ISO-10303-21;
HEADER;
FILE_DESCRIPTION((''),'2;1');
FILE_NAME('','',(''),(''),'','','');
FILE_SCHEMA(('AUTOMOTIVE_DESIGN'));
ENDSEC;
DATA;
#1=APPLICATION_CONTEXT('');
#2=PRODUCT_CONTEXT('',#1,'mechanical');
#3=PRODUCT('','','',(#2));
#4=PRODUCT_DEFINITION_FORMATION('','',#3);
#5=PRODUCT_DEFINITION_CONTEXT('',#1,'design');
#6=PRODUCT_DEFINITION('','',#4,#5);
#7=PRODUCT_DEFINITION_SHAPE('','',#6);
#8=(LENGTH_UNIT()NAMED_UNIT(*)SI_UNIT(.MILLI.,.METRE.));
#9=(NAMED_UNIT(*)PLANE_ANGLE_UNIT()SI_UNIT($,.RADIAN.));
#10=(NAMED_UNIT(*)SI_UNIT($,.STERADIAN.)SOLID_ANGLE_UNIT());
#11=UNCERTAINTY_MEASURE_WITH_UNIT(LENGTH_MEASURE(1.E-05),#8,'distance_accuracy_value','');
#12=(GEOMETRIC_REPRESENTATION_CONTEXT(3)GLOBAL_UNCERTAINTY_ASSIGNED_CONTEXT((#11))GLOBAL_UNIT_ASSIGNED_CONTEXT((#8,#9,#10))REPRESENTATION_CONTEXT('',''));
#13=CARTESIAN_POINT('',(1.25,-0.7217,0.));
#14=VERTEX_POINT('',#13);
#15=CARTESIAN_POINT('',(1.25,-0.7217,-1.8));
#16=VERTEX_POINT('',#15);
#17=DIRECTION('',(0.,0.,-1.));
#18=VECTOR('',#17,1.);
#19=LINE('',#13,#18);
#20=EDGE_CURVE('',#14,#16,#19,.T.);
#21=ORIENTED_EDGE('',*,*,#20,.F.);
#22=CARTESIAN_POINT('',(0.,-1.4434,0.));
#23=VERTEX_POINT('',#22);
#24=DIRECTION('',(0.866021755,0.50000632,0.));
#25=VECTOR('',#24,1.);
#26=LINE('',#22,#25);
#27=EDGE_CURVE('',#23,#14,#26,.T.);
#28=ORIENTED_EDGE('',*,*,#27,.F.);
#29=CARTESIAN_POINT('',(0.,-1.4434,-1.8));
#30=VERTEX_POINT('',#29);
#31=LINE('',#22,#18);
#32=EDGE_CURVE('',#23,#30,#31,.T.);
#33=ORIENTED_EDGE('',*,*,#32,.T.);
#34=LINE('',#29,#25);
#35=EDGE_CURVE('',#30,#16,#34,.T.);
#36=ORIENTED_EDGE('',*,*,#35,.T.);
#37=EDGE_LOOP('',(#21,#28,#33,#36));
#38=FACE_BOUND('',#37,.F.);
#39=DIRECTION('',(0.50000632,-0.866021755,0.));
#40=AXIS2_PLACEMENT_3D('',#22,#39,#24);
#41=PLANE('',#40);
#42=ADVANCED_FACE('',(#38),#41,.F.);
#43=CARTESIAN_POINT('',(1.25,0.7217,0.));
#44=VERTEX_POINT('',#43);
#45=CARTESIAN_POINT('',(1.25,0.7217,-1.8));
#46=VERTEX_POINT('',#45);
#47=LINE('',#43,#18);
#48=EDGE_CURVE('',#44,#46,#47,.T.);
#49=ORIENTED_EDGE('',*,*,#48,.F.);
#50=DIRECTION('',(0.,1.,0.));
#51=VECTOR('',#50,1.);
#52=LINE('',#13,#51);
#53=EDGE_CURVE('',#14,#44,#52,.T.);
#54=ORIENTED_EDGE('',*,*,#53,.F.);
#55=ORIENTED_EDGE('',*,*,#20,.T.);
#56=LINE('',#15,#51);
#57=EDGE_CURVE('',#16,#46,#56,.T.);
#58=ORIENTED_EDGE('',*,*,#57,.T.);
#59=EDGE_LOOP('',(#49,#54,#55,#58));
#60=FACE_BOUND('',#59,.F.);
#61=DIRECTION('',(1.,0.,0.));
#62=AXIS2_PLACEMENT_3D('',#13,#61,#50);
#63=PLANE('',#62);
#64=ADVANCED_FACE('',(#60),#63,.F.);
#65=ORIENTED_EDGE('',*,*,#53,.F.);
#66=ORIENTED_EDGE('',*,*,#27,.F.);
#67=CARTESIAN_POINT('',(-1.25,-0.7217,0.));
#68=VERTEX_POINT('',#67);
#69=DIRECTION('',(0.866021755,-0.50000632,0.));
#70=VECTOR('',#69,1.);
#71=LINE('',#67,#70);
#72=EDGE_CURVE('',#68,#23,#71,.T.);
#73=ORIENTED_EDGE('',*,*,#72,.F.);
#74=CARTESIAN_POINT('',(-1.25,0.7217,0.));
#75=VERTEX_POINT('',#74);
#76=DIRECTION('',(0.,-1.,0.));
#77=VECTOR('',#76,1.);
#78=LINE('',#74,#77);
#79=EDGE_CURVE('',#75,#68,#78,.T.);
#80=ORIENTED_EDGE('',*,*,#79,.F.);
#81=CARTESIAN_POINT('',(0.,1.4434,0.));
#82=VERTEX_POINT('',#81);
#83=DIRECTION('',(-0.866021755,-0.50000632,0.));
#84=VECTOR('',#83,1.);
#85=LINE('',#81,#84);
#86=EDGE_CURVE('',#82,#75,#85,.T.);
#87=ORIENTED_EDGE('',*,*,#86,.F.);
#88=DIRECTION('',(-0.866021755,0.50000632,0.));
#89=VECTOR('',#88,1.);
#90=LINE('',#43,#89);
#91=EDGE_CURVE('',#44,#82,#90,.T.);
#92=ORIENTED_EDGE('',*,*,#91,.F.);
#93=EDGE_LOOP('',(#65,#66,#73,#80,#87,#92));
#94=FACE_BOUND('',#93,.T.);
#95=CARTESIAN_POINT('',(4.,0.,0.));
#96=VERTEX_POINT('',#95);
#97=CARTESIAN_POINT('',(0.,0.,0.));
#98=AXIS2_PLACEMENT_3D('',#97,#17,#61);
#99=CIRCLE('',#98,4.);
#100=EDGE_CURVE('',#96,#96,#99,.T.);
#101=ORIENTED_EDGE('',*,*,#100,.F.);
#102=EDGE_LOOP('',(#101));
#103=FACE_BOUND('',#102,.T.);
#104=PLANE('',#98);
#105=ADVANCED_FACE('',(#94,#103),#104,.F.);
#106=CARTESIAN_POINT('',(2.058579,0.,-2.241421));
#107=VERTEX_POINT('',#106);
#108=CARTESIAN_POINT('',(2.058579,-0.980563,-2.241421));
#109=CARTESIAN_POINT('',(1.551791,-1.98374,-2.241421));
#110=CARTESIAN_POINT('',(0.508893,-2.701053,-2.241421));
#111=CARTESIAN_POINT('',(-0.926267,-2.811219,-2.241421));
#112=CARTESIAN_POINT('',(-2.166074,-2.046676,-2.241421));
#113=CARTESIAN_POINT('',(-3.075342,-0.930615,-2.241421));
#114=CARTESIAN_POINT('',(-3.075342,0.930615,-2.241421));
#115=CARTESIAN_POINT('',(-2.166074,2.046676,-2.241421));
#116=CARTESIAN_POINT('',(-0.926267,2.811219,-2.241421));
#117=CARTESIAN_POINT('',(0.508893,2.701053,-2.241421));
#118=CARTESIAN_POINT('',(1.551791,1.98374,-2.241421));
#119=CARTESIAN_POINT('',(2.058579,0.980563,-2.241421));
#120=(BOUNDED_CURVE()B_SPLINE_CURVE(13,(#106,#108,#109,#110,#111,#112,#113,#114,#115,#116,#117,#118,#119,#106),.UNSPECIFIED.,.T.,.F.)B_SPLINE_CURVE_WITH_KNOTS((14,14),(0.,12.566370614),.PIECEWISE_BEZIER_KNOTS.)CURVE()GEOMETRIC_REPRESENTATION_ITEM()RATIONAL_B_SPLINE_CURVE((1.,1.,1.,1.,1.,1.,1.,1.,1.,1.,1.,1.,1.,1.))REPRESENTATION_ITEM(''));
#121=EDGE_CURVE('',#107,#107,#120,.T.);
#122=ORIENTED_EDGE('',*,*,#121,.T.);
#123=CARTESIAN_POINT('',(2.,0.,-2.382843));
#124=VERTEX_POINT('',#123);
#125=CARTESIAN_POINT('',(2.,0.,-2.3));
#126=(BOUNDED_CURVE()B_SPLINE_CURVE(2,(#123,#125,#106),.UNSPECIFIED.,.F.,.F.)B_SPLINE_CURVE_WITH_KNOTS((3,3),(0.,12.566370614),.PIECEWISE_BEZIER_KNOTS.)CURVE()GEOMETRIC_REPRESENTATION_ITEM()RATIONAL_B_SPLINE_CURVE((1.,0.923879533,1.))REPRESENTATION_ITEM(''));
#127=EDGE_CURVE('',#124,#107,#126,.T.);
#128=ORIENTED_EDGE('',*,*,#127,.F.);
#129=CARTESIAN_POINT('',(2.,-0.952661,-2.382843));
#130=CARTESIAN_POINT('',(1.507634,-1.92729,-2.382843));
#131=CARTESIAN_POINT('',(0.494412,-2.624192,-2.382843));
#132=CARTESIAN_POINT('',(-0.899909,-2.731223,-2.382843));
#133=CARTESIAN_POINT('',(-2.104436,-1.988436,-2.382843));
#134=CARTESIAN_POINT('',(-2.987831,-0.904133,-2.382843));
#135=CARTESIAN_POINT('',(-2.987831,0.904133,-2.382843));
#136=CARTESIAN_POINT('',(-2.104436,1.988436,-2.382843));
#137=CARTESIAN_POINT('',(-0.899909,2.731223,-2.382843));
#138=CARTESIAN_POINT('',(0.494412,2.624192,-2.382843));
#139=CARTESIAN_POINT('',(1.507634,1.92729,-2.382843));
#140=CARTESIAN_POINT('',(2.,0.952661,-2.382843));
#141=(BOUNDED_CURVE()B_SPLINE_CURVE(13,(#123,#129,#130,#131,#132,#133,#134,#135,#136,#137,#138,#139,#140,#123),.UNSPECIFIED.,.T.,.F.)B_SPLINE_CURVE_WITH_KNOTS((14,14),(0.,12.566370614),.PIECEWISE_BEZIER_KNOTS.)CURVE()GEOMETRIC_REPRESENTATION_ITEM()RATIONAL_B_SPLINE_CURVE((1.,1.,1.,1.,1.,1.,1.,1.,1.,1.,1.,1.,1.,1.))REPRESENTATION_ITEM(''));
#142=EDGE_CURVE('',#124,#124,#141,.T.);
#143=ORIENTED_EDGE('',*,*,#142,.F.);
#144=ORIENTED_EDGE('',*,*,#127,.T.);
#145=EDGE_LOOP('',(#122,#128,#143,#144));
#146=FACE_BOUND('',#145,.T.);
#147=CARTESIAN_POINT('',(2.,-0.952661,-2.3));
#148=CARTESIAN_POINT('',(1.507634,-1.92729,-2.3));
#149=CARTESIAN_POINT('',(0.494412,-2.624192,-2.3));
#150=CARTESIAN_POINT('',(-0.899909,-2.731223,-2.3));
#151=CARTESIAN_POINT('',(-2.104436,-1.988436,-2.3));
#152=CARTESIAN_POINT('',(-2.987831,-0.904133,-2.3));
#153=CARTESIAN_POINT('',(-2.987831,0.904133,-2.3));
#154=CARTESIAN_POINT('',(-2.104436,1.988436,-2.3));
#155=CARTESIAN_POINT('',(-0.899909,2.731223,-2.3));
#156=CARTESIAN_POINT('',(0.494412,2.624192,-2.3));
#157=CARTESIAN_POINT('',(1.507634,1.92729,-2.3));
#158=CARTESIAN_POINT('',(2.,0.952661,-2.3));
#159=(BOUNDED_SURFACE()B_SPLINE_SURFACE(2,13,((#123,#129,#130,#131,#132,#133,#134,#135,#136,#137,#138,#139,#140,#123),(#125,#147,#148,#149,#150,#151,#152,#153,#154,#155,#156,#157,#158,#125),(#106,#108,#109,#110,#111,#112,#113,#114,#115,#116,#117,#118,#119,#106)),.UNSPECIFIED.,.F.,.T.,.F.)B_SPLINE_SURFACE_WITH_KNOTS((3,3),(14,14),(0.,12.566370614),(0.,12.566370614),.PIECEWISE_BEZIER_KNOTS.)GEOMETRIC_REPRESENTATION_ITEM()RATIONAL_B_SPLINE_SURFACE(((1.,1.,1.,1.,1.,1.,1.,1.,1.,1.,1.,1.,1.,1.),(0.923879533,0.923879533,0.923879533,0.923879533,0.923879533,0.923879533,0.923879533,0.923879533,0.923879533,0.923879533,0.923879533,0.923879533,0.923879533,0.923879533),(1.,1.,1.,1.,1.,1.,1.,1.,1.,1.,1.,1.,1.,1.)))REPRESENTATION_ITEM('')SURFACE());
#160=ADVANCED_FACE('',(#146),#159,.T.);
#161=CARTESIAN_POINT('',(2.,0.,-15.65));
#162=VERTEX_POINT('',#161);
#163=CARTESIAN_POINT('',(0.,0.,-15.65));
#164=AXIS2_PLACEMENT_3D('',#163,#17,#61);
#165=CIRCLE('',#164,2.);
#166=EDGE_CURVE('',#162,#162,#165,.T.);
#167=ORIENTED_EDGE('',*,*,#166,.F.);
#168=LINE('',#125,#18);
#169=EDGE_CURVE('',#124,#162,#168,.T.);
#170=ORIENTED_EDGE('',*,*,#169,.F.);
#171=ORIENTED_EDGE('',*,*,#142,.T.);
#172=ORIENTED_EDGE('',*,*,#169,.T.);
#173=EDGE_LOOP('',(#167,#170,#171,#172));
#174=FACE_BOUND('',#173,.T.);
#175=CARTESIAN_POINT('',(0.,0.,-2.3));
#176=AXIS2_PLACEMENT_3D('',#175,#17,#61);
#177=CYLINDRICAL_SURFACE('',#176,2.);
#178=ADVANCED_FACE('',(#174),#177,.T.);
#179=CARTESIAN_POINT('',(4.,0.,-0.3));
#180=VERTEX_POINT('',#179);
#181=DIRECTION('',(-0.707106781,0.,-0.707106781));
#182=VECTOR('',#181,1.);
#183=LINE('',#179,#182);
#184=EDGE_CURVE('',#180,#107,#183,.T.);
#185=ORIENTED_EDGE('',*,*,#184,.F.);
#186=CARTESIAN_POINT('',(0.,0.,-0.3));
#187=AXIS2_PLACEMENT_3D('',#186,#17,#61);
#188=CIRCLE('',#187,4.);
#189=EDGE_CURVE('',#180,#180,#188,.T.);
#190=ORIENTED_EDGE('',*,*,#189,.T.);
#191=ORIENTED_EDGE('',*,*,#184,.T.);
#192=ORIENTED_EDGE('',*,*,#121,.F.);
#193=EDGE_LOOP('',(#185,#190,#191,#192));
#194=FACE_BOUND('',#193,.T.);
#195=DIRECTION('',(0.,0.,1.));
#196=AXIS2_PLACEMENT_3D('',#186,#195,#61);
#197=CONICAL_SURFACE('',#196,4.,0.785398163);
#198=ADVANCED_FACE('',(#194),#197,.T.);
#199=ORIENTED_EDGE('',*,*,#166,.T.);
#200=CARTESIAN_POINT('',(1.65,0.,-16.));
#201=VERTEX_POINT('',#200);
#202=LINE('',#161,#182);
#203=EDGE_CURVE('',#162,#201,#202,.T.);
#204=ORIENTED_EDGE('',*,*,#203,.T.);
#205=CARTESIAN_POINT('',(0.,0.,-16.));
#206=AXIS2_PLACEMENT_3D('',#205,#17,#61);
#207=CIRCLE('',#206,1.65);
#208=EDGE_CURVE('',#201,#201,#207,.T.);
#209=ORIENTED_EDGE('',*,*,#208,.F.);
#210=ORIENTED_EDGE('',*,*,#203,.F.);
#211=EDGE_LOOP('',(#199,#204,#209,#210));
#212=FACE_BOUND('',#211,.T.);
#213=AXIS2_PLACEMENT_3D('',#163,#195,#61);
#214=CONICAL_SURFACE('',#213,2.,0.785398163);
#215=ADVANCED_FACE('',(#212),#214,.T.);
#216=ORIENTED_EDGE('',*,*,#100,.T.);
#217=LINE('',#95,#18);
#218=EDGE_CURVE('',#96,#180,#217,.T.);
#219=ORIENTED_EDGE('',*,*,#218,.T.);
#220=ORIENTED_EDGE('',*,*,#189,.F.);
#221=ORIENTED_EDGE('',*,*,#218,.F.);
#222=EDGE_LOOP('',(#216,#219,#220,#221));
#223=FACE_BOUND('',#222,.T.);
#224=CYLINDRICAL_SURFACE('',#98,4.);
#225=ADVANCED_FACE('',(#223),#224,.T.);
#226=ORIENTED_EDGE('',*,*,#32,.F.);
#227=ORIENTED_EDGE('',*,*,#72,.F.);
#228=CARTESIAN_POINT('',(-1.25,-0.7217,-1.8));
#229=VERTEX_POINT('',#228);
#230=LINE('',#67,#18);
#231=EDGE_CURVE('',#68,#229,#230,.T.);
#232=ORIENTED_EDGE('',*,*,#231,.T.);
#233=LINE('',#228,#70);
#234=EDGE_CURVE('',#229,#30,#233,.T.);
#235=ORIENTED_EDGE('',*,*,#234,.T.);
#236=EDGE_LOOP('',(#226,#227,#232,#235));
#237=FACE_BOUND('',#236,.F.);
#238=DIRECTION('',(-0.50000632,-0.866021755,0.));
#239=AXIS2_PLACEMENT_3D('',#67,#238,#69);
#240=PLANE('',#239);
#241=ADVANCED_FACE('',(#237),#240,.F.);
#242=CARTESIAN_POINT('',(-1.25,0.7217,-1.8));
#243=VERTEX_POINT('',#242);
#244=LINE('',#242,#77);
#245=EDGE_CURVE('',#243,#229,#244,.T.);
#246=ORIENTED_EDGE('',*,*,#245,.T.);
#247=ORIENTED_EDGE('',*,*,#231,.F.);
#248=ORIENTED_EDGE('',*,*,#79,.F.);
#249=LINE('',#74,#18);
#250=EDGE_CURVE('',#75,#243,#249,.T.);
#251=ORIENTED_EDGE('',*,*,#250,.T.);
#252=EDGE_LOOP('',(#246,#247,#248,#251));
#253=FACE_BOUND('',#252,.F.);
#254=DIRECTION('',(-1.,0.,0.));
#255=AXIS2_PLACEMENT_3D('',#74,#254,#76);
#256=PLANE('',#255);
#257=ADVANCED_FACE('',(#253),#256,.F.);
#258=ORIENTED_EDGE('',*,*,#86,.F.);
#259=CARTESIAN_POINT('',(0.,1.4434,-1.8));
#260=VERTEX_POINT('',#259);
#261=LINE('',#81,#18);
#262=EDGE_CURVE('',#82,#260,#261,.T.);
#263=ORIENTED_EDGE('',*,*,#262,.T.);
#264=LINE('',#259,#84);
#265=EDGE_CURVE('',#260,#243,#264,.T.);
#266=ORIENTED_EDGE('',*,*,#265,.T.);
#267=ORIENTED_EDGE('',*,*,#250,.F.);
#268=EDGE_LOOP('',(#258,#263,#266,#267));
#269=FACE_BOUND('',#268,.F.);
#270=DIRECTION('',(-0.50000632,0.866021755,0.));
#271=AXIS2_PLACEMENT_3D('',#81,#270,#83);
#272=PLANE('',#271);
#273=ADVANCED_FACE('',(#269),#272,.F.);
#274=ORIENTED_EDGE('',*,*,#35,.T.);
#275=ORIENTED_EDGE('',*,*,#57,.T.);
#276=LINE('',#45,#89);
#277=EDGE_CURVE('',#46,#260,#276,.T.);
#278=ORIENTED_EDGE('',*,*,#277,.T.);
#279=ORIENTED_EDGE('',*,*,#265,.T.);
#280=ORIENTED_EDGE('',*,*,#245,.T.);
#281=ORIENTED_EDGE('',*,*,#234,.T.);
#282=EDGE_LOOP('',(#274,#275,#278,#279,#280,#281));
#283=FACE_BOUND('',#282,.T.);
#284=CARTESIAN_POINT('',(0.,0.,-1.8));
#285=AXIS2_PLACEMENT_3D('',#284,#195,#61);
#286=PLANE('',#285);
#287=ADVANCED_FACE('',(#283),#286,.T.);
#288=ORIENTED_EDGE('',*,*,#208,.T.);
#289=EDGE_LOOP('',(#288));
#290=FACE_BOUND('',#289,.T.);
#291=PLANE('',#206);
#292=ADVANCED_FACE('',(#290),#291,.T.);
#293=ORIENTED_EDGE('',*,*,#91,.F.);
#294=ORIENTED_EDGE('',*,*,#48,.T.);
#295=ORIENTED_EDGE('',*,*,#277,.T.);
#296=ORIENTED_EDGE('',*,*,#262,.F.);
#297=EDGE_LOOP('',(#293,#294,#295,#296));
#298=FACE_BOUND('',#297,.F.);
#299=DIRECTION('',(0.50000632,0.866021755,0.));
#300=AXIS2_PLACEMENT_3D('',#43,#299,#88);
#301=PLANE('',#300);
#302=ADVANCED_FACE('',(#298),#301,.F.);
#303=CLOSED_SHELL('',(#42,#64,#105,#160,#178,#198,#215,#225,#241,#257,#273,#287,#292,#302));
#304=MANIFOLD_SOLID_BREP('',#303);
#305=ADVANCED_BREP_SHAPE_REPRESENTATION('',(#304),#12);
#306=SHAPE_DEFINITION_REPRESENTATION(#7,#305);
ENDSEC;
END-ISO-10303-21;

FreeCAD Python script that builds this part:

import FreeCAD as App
import Part
import Sketcher
from FreeCAD import Vector
Q = App.Units.Quantity


def edges_at(feature, points):
    """Names of the edges that pass closest to the given points."""
    edges = feature.Shape.Edges
    near = lambda p: min(range(len(edges)), key=lambda i: edges[i].distToShape(Part.Vertex(*p))[0])
    return sorted({f"Edge{near(p) + 1}" for p in points})

doc = App.newDocument("Part")
body = doc.addObject("PartDesign::Body", "Body")

# Sketch on XZ plane
sketch1 = body.newObject("Sketcher::SketchObject", "Sketch")
sketch1.AttachmentSupport = (doc.getObject("XZ_Plane"), [""])
sketch1.MapMode = "FlatFace"
sketch1.addGeometry(Part.LineSegment(Vector(2, -2.3, 0), Vector(2, -16, 0)), False)
sketch1.addGeometry(Part.LineSegment(Vector(2, -16, 0), Vector(0, -16, 0)), False)
sketch1.addGeometry(Part.LineSegment(Vector(0, -16, 0), Vector(0, 0, 0)), False)
sketch1.addGeometry(Part.LineSegment(Vector(0, 0, 0), Vector(4, 0, 0)), False)
sketch1.addGeometry(Part.LineSegment(Vector(4, 0, 0), Vector(4, -0.3, 0)), False)
sketch1.addGeometry(Part.LineSegment(Vector(4, -0.3, 0), Vector(2, -2.3, 0)), False)
sketch1.addConstraint(Sketcher.Constraint("Coincident", 0, 2, 1, 1))
sketch1.addConstraint(Sketcher.Constraint("Coincident", 1, 2, 2, 1))
sketch1.addConstraint(Sketcher.Constraint("Coincident", 2, 2, 3, 1))
sketch1.addConstraint(Sketcher.Constraint("Coincident", 3, 2, 4, 1))
sketch1.addConstraint(Sketcher.Constraint("Coincident", 4, 2, 5, 1))
sketch1.addConstraint(Sketcher.Constraint("Coincident", 5, 2, 0, 1))
sketch1.addConstraint(Sketcher.Constraint("Vertical", 0))
sketch1.addConstraint(Sketcher.Constraint("Horizontal", 1))
sketch1.addConstraint(Sketcher.Constraint("Vertical", 2))
sketch1.addConstraint(Sketcher.Constraint("Horizontal", 3))
sketch1.addConstraint(Sketcher.Constraint("Vertical", 4))
sketch1.addConstraint(Sketcher.Constraint("Coincident", 2, 2, -1, 1))
sketch1.addConstraint(Sketcher.Constraint("DistanceX", 1, 2, 1, 1, 2.0))
sketch1.addConstraint(Sketcher.Constraint("DistanceX", 3, 1, 3, 2, 4.0))
sketch1.addConstraint(Sketcher.Constraint("DistanceY", 2, 1, 2, 2, 16.0))
sketch1.addConstraint(Sketcher.Constraint("DistanceY", 4, 2, 4, 1, 0.3))
sketch1.addConstraint(Sketcher.Constraint("DistanceY", 5, 2, 4, 2, 2.0))
revolution = body.newObject("PartDesign::Revolution", "Revolution")
revolution.Profile = sketch1
revolution.ReferenceAxis = (sketch1, ["V_Axis"])
revolution.Angle = 360

# Sketch on XY plane
sketch2 = body.newObject("Sketcher::SketchObject", "Sketch001")
sketch2.AttachmentSupport = (doc.getObject("XY_Plane"), [""])
sketch2.MapMode = "FlatFace"
sketch2.addGeometry(Part.LineSegment(Vector(0, 1.4, 0), Vector(-1.2, 0.7, 0)), False)
sketch2.addGeometry(Part.LineSegment(Vector(-1.2, 0.7, 0), Vector(-1.2, -0.7, 0)), False)
sketch2.addGeometry(Part.LineSegment(Vector(-1.2, -0.7, 0), Vector(0, -1.4, 0)), False)
sketch2.addGeometry(Part.LineSegment(Vector(0, -1.4, 0), Vector(1.2, -0.7, 0)), False)
sketch2.addGeometry(Part.LineSegment(Vector(1.2, -0.7, 0), Vector(1.2, 0.7, 0)), False)
sketch2.addGeometry(Part.LineSegment(Vector(1.2, 0.7, 0), Vector(0, 1.4, 0)), False)
sketch2.addConstraint(Sketcher.Constraint("Coincident", 0, 2, 1, 1))
sketch2.addConstraint(Sketcher.Constraint("Coincident", 1, 2, 2, 1))
sketch2.addConstraint(Sketcher.Constraint("Coincident", 2, 2, 3, 1))
sketch2.addConstraint(Sketcher.Constraint("Coincident", 3, 2, 4, 1))
sketch2.addConstraint(Sketcher.Constraint("Coincident", 4, 2, 5, 1))
sketch2.addConstraint(Sketcher.Constraint("Coincident", 5, 2, 0, 1))
sketch2.addConstraint(Sketcher.Constraint("Vertical", 1))
sketch2.addConstraint(Sketcher.Constraint("Vertical", 4))
sketch2.addConstraint(Sketcher.Constraint("Symmetric", 0, 2, 3, 2, -1, 1))
sketch2.addConstraint(Sketcher.Constraint("Symmetric", 2, 2, 5, 2, -1, 1))
sketch2.addConstraint(Sketcher.Constraint("PointOnObject", 2, 2, -2))
sketch2.addConstraint(Sketcher.Constraint("Parallel", 2, 5))
sketch2.addConstraint(Sketcher.Constraint("Horizontal", 1, 2, 3, 2))
sketch2.addConstraint(Sketcher.Constraint("DistanceX", 1, 2, 3, 2, 2.5))
sketch2.addConstraint(Sketcher.Constraint("Angle", 0, Q("-149.9996 deg")))
sketch2.addConstraint(Sketcher.Constraint("DistanceY", 1, 2, 1, 1, 1.4434))
pocket1 = body.newObject("PartDesign::Pocket", "Pocket")
pocket1.Profile = sketch2
pocket1.Length = 1.8
doc.recompute()

fillet = body.newObject("PartDesign::Fillet", "Fillet")
fillet.Base = (pocket1, edges_at(pocket1, [(-2, 0, -2.3)]))
fillet.Radius = 0.2
doc.recompute()

chamfer = body.newObject("PartDesign::Chamfer", "Chamfer")
chamfer.Base = (fillet, edges_at(fillet, [(-2, 0, -16)]))
chamfer.Size = 0.35

doc.recompute()
